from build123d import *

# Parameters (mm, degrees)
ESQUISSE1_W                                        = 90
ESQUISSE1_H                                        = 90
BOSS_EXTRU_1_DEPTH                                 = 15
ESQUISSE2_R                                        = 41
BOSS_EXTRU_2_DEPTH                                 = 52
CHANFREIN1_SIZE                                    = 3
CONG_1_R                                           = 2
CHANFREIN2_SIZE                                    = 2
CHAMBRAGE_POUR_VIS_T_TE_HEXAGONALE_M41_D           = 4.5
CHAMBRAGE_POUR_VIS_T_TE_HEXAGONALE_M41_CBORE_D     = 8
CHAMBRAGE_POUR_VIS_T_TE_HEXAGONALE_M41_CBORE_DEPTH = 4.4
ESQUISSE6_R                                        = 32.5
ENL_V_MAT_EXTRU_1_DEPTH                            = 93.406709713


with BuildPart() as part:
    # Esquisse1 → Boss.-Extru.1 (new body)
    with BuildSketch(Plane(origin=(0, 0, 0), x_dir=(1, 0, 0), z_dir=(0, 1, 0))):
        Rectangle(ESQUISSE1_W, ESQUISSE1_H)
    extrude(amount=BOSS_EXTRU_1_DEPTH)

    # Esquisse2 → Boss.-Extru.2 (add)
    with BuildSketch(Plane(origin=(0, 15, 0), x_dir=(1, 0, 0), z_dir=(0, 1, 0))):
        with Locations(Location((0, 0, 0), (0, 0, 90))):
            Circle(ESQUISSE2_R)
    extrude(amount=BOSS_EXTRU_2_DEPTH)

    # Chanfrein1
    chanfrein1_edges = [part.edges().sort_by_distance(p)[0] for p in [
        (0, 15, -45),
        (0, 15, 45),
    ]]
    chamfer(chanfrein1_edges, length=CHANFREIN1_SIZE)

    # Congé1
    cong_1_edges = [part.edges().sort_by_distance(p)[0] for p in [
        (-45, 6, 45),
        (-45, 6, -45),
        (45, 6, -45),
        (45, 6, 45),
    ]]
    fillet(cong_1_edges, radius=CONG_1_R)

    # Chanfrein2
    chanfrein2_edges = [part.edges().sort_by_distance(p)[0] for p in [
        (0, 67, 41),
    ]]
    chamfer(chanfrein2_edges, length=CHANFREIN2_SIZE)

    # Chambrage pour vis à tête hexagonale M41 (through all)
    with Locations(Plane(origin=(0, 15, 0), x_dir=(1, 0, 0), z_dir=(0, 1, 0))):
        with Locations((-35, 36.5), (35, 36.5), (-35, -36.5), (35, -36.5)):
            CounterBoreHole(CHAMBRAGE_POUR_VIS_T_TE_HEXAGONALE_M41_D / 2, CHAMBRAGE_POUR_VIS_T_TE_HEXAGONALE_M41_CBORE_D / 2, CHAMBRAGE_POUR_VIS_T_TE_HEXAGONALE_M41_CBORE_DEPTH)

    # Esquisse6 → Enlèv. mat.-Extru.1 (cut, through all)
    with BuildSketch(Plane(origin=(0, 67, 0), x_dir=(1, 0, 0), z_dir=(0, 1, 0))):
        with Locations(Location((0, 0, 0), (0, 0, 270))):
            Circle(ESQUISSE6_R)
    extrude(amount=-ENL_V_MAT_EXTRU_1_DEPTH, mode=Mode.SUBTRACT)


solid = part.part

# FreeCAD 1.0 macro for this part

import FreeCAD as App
import Part
import Sketcher

V = App.Vector
Q = App.Units.Quantity


def edges_at(feature, points):
    """Names of the edges that pass closest to the given points."""
    edges = feature.Shape.Edges
    near = lambda p: min(range(len(edges)), key=lambda i: edges[i].distToShape(Part.Vertex(*p))[0])
    return sorted({f"Edge{near(p) + 1}" for p in points})

doc = App.newDocument("Part")
body = doc.addObject("PartDesign::Body", "Body")

# Sketch on XZ plane
sketch1 = body.newObject("Sketcher::SketchObject", "Sketch")
sketch1.AttachmentSupport = (doc.getObject("XZ_Plane"), [""])
sketch1.MapMode = "FlatFace"
sketch1.addGeometry([
    Part.LineSegment(V(-45, -45, 0), V(-45, 45, 0)),
    Part.LineSegment(V(-45, 45, 0), V(45, 45, 0)),
    Part.LineSegment(V(45, 45, 0), V(45, -45, 0)),
    Part.LineSegment(V(45, -45, 0), V(-45, -45, 0)),
], False)
sketch1.addConstraint([
    Sketcher.Constraint("Coincident", 0, 2, 1, 1),
    Sketcher.Constraint("Coincident", 1, 2, 2, 1),
    Sketcher.Constraint("Coincident", 2, 2, 3, 1),
    Sketcher.Constraint("Coincident", 3, 2, 0, 1),
    Sketcher.Constraint("Vertical", 0),
    Sketcher.Constraint("Horizontal", 1),
    Sketcher.Constraint("Vertical", 2),
    Sketcher.Constraint("Horizontal", 3),
    Sketcher.Constraint("Symmetric", 0, 2, 2, 2, -1, 1),
    Sketcher.Constraint("Equal", 3, 0),
    Sketcher.Constraint("DistanceX", 1, 1, 1, 2, Q("90 mm")),
])
pad1 = body.newObject("PartDesign::Pad", "Pad")
pad1.Profile = sketch1
pad1.Length = 15
pad1.Reversed = True

# Sketch on XZ plane
sketch2 = body.newObject("Sketcher::SketchObject", "Sketch001")
sketch2.AttachmentSupport = (doc.getObject("XZ_Plane"), [""])
sketch2.MapMode = "FlatFace"
sketch2.AttachmentOffset = App.Placement(V(0, 0, -15), App.Rotation())
sketch2.addGeometry(Part.Circle(V(0, 0, 0), V(0, 0, 1), 41), False)
sketch2.addConstraint([
    Sketcher.Constraint("Coincident", 0, 3, -1, 1),
    Sketcher.Constraint("Diameter", 0, Q("82 mm")),
])
pad2 = body.newObject("PartDesign::Pad", "Pad001")
pad2.Profile = sketch2
pad2.Length = 52
pad2.Reversed = True
doc.recompute()

chamfer = body.newObject("PartDesign::Chamfer", "Chamfer")
chamfer.Base = (pad2, edges_at(pad2, [(0, 15, -45), (0, 15, 45)]))
chamfer.Size = 3
doc.recompute()

fillet = body.newObject("PartDesign::Fillet", "Fillet")
fillet.Base = (chamfer, edges_at(chamfer, [
    (-45, 6, 45),
    (-45, 6, -45),
    (45, 6, -45),
    (45, 6, 45),
]))
fillet.Radius = 2
doc.recompute()

chamfer2 = body.newObject("PartDesign::Chamfer", "Chamfer001")
chamfer2.Base = (fillet, edges_at(fillet, [(0, 67, 41)]))
chamfer2.Size = 2

# Sketch on XZ plane
sketch3 = body.newObject("Sketcher::SketchObject", "Sketch002")
sketch3.AttachmentSupport = (doc.getObject("XZ_Plane"), [""])
sketch3.MapMode = "FlatFace"
sketch3.AttachmentOffset = App.Placement(V(0, 0, -15), App.Rotation())
sketch3.addGeometry([
    Part.Circle(V(-35, -36.5, 0), V(0, 0, 1), 2.2),
    Part.Circle(V(35, -36.5, 0), V(0, 0, 1), 2.2),
    Part.Circle(V(-35, 36.5, 0), V(0, 0, 1), 2.2),
    Part.Circle(V(35, 36.5, 0), V(0, 0, 1), 2.2),
], False)
sketch3.addConstraint([
    Sketcher.Constraint("Equal", 0, 1),
    Sketcher.Constraint("Equal", 1, 2),
    Sketcher.Constraint("Equal", 2, 3),
    Sketcher.Constraint("Symmetric", 1, 3, 2, 3, -1, 1),
    Sketcher.Constraint("Symmetric", 0, 3, 3, 3, -1, 1),
    Sketcher.Constraint("Symmetric", 0, 3, 1, 3, -2),
    Sketcher.Constraint("Diameter", 0, Q("4.5 mm")),
    Sketcher.Constraint("DistanceX", 0, 3, -1, 1, Q("35 mm")),
    Sketcher.Constraint("DistanceY", 0, 3, 2, 3, Q("73 mm")),
])
doc.recompute()
hole = body.newObject("PartDesign::Hole", "Hole")
hole.Profile = sketch3
hole.ThreadType = "None"
hole.Diameter = 4.5
hole.DepthType = "ThroughAll"
hole.HoleCutType = "Counterbore"
hole.HoleCutDiameter = 8
hole.HoleCutDepth = 4.4
hole.Reversed = True

# Sketch on XZ plane
sketch4 = body.newObject("Sketcher::SketchObject", "Sketch003")
sketch4.AttachmentSupport = (doc.getObject("XZ_Plane"), [""])
sketch4.MapMode = "FlatFace"
sketch4.AttachmentOffset = App.Placement(V(0, 0, -67), App.Rotation())
sketch4.addGeometry(Part.Circle(V(0, 0, 0), V(0, 0, 1), 32), False)
sketch4.addConstraint([
    Sketcher.Constraint("Coincident", 0, 3, -1, 1),
    Sketcher.Constraint("Diameter", 0, Q("65 mm")),
])
pocket1 = body.newObject("PartDesign::Pocket", "Pocket")
pocket1.Profile = sketch4
pocket1.Type = "ThroughAll"
pocket1.Reversed = True

doc.recompute()
